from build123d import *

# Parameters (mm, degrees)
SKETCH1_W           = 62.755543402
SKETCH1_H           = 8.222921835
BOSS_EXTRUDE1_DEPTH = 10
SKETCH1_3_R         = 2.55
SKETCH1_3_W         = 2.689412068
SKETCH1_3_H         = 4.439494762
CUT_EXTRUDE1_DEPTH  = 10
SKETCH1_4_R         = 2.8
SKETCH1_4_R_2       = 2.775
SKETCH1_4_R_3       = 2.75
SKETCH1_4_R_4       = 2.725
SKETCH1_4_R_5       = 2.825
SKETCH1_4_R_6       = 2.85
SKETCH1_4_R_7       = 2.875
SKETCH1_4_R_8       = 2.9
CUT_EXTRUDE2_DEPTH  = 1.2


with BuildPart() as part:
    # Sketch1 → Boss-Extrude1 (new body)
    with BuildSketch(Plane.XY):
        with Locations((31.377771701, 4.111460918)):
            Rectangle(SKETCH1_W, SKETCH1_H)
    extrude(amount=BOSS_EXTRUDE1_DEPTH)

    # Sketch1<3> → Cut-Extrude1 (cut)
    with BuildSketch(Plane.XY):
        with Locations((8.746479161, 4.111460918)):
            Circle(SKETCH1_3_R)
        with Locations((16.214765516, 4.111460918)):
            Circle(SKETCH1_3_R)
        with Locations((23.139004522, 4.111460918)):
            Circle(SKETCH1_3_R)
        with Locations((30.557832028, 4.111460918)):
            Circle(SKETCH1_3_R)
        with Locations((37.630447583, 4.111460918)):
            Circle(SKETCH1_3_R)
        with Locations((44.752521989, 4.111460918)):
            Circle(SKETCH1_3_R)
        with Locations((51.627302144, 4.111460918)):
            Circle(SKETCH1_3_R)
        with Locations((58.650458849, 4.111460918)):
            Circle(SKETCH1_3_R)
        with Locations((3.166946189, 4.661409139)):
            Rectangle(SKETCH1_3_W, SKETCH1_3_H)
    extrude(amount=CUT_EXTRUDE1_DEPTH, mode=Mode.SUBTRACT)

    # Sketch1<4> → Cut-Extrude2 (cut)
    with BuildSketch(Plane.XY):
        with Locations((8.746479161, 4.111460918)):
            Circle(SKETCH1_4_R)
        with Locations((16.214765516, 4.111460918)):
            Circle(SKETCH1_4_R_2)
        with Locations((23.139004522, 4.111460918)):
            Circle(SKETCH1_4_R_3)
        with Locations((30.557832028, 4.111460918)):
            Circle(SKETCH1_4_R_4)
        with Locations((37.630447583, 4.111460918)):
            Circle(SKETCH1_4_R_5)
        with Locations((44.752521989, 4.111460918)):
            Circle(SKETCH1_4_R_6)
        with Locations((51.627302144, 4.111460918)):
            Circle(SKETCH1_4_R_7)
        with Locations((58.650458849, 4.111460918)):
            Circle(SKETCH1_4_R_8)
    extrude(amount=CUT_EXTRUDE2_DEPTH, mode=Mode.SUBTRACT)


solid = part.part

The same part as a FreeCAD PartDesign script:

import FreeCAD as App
import Part
import Sketcher
from FreeCAD import Vector


def add_polygon(sketch, points):
    """Adds a closed chain of lines whose ends are joined by coincident constraints."""
    first, n = sketch.GeometryCount, len(points)
    for a, b in zip(points, points[1:] + points[:1]):
        sketch.addGeometry(Part.LineSegment(App.Vector(*a, 0), App.Vector(*b, 0)), False)
    for i in range(n):
        sketch.addConstraint(Sketcher.Constraint("Coincident", first + i, 2, first + (i + 1) % n, 1))

doc = App.newDocument("Part")
body = doc.addObject("PartDesign::Body", "Body")

# Sketch on XY plane
sketch1 = body.newObject("Sketcher::SketchObject", "Sketch")
sketch1.AttachmentSupport = (doc.getObject("XY_Plane"), [""])
sketch1.MapMode = "FlatFace"
add_polygon(sketch1, [(0, 8), (0, 0), (63, 0), (63, 8)])  # lines 0-3
sketch1.addConstraint(Sketcher.Constraint("Vertical", 0))
sketch1.addConstraint(Sketcher.Constraint("Horizontal", 1))
sketch1.addConstraint(Sketcher.Constraint("Vertical", 2))
sketch1.addConstraint(Sketcher.Constraint("Horizontal", 3))
sketch1.addConstraint(Sketcher.Constraint("Coincident", 0, 2, -1, 1))
sketch1.addConstraint(Sketcher.Constraint("DistanceY", 0, 2, 0, 1, 8.222922))
sketch1.addConstraint(Sketcher.Constraint("DistanceX", 1, 1, 1, 2, 62.755543))
pad1 = body.newObject("PartDesign::Pad", "Pad")
pad1.Profile = sketch1
pad1.Length = 10

# Sketch on XY plane
sketch2 = body.newObject("Sketcher::SketchObject", "Sketch001")
sketch2.AttachmentSupport = (doc.getObject("XY_Plane"), [""])
sketch2.MapMode = "FlatFace"
sketch2.addGeometry(Part.Circle(Vector(8.7, 4.1, 0), Vector(0, 0, 1), 2.5), False)  # 0
sketch2.addGeometry(Part.Circle(Vector(16.2, 4.1, 0), Vector(0, 0, 1), 2.5), False)  # 1
sketch2.addGeometry(Part.Circle(Vector(23.1, 4.1, 0), Vector(0, 0, 1), 2.5), False)  # 2
sketch2.addGeometry(Part.Circle(Vector(30.6, 4.1, 0), Vector(0, 0, 1), 2.5), False)  # 3
sketch2.addGeometry(Part.Circle(Vector(37.6, 4.1, 0), Vector(0, 0, 1), 2.5), False)  # 4
sketch2.addGeometry(Part.Circle(Vector(44.8, 4.1, 0), Vector(0, 0, 1), 2.5), False)  # 5
sketch2.addGeometry(Part.Circle(Vector(51.6, 4.1, 0), Vector(0, 0, 1), 2.5), False)  # 6
sketch2.addGeometry(Part.Circle(Vector(58.7, 4.1, 0), Vector(0, 0, 1), 2.5), False)  # 7
add_polygon(sketch2, [(1.8, 6.9), (1.8, 2.4), (4.5, 2.4), (4.5, 6.9)])  # lines 8-11
sketch2.addConstraint(Sketcher.Constraint("Vertical", 8))
sketch2.addConstraint(Sketcher.Constraint("Horizontal", 9))
sketch2.addConstraint(Sketcher.Constraint("Vertical", 10))
sketch2.addConstraint(Sketcher.Constraint("Horizontal", 11))
sketch2.addConstraint(Sketcher.Constraint("Equal", 0, 1))
sketch2.addConstraint(Sketcher.Constraint("Equal", 1, 2))
sketch2.addConstraint(Sketcher.Constraint("Equal", 2, 3))
sketch2.addConstraint(Sketcher.Constraint("Equal", 3, 4))
sketch2.addConstraint(Sketcher.Constraint("Equal", 4, 5))
sketch2.addConstraint(Sketcher.Constraint("Equal", 5, 6))
sketch2.addConstraint(Sketcher.Constraint("Equal", 6, 7))
sketch2.addConstraint(Sketcher.Constraint("Horizontal", 0, 3, 1, 3))
sketch2.addConstraint(Sketcher.Constraint("Horizontal", 1, 3, 2, 3))
sketch2.addConstraint(Sketcher.Constraint("Horizontal", 2, 3, 3, 3))
sketch2.addConstraint(Sketcher.Constraint("Horizontal", 3, 3, 4, 3))
sketch2.addConstraint(Sketcher.Constraint("Horizontal", 4, 3, 5, 3))
sketch2.addConstraint(Sketcher.Constraint("Horizontal", 5, 3, 6, 3))
sketch2.addConstraint(Sketcher.Constraint("Horizontal", 6, 3, 7, 3))
sketch2.addConstraint(Sketcher.Constraint("Diameter", 0, 5.1))
sketch2.addConstraint(Sketcher.Constraint("DistanceY", 8, 2, 0, 3, 1.669799))
sketch2.addConstraint(Sketcher.Constraint("DistanceX", 9, 1, 9, 2, 2.689412))
sketch2.addConstraint(Sketcher.Constraint("DistanceY", 8, 2, 8, 1, 4.439495))
sketch2.addConstraint(Sketcher.Constraint("DistanceX", -1, 1, 0, 3, 8.746479))
sketch2.addConstraint(Sketcher.Constraint("DistanceY", -1, 1, 0, 3, 4.111461))
sketch2.addConstraint(Sketcher.Constraint("DistanceX", -1, 1, 5, 3, 44.752522))
sketch2.addConstraint(Sketcher.Constraint("DistanceX", -1, 1, 7, 3, 58.650459))
sketch2.addConstraint(Sketcher.Constraint("DistanceX", -1, 1, 8, 2, 1.82224))
sketch2.addConstraint(Sketcher.Constraint("DistanceX", 1, 3, 2, 3, 6.924239))
sketch2.addConstraint(Sketcher.Constraint("DistanceX", 0, 3, 4, 3, 28.883968))
sketch2.addConstraint(Sketcher.Constraint("DistanceX", 3, 3, 5, 3, 14.19469))
sketch2.addConstraint(Sketcher.Constraint("DistanceX", 5, 3, 6, 3, 6.87478))
sketch2.addConstraint(Sketcher.Constraint("DistanceX", -1, 1, 1, 3, 16.214766))
pocket1 = body.newObject("PartDesign::Pocket", "Pocket")
pocket1.Profile = sketch2
pocket1.Length = 10
pocket1.Reversed = True

# Sketch on XY plane
sketch3 = body.newObject("Sketcher::SketchObject", "Sketch002")
sketch3.AttachmentSupport = (doc.getObject("XY_Plane"), [""])
sketch3.MapMode = "FlatFace"
sketch3.addGeometry(Part.Circle(Vector(8.7, 4.1, 0), Vector(0, 0, 1), 2.8), False)
sketch3.addGeometry(Part.Circle(Vector(16.2, 4.1, 0), Vector(0, 0, 1), 2.8), False)
sketch3.addGeometry(Part.Circle(Vector(23.1, 4.1, 0), Vector(0, 0, 1), 2.8), False)
sketch3.addGeometry(Part.Circle(Vector(30.6, 4.1, 0), Vector(0, 0, 1), 2.7), False)
sketch3.addGeometry(Part.Circle(Vector(37.6, 4.1, 0), Vector(0, 0, 1), 2.8), False)
sketch3.addGeometry(Part.Circle(Vector(44.8, 4.1, 0), Vector(0, 0, 1), 2.9), False)
sketch3.addGeometry(Part.Circle(Vector(51.6, 4.1, 0), Vector(0, 0, 1), 2.9), False)
sketch3.addGeometry(Part.Circle(Vector(58.7, 4.1, 0), Vector(0, 0, 1), 2.9), False)
sketch3.addConstraint(Sketcher.Constraint("Horizontal", 0, 3, 1, 3))
sketch3.addConstraint(Sketcher.Constraint("Horizontal", 1, 3, 2, 3))
sketch3.addConstraint(Sketcher.Constraint("Horizontal", 2, 3, 3, 3))
sketch3.addConstraint(Sketcher.Constraint("Horizontal", 3, 3, 4, 3))
sketch3.addConstraint(Sketcher.Constraint("Horizontal", 4, 3, 5, 3))
sketch3.addConstraint(Sketcher.Constraint("Horizontal", 5, 3, 6, 3))
sketch3.addConstraint(Sketcher.Constraint("Horizontal", 6, 3, 7, 3))
sketch3.addConstraint(Sketcher.Constraint("Diameter", 0, 5.6))
sketch3.addConstraint(Sketcher.Constraint("Diameter", 2, 5.5))
sketch3.addConstraint(Sketcher.Constraint("Diameter", 5, 5.7))
sketch3.addConstraint(Sketcher.Constraint("Diameter", 7, 5.8))
sketch3.addConstraint(Sketcher.Constraint("Diameter", 1, 5.55))
sketch3.addConstraint(Sketcher.Constraint("Diameter", 3, 5.45))
sketch3.addConstraint(Sketcher.Constraint("Diameter", 4, 5.65))
sketch3.addConstraint(Sketcher.Constraint("Diameter", 6, 5.75))
sketch3.addConstraint(Sketcher.Constraint("DistanceX", -1, 1, 0, 3, 8.746479))
sketch3.addConstraint(Sketcher.Constraint("DistanceY", -1, 1, 0, 3, 4.111461))
sketch3.addConstraint(Sketcher.Constraint("DistanceX", -1, 1, 5, 3, 44.752522))
sketch3.addConstraint(Sketcher.Constraint("DistanceX", -1, 1, 7, 3, 58.650459))
sketch3.addConstraint(Sketcher.Constraint("DistanceX", 1, 3, 2, 3, 6.924239))
sketch3.addConstraint(Sketcher.Constraint("DistanceX", 0, 3, 4, 3, 28.883968))
sketch3.addConstraint(Sketcher.Constraint("DistanceX", 3, 3, 5, 3, 14.19469))
sketch3.addConstraint(Sketcher.Constraint("DistanceX", 5, 3, 6, 3, 6.87478))
sketch3.addConstraint(Sketcher.Constraint("DistanceX", -1, 1, 1, 3, 16.214766))
pocket2 = body.newObject("PartDesign::Pocket", "Pocket001")
pocket2.Profile = sketch3
pocket2.Length = 1.2
pocket2.Reversed = True

doc.recompute()
